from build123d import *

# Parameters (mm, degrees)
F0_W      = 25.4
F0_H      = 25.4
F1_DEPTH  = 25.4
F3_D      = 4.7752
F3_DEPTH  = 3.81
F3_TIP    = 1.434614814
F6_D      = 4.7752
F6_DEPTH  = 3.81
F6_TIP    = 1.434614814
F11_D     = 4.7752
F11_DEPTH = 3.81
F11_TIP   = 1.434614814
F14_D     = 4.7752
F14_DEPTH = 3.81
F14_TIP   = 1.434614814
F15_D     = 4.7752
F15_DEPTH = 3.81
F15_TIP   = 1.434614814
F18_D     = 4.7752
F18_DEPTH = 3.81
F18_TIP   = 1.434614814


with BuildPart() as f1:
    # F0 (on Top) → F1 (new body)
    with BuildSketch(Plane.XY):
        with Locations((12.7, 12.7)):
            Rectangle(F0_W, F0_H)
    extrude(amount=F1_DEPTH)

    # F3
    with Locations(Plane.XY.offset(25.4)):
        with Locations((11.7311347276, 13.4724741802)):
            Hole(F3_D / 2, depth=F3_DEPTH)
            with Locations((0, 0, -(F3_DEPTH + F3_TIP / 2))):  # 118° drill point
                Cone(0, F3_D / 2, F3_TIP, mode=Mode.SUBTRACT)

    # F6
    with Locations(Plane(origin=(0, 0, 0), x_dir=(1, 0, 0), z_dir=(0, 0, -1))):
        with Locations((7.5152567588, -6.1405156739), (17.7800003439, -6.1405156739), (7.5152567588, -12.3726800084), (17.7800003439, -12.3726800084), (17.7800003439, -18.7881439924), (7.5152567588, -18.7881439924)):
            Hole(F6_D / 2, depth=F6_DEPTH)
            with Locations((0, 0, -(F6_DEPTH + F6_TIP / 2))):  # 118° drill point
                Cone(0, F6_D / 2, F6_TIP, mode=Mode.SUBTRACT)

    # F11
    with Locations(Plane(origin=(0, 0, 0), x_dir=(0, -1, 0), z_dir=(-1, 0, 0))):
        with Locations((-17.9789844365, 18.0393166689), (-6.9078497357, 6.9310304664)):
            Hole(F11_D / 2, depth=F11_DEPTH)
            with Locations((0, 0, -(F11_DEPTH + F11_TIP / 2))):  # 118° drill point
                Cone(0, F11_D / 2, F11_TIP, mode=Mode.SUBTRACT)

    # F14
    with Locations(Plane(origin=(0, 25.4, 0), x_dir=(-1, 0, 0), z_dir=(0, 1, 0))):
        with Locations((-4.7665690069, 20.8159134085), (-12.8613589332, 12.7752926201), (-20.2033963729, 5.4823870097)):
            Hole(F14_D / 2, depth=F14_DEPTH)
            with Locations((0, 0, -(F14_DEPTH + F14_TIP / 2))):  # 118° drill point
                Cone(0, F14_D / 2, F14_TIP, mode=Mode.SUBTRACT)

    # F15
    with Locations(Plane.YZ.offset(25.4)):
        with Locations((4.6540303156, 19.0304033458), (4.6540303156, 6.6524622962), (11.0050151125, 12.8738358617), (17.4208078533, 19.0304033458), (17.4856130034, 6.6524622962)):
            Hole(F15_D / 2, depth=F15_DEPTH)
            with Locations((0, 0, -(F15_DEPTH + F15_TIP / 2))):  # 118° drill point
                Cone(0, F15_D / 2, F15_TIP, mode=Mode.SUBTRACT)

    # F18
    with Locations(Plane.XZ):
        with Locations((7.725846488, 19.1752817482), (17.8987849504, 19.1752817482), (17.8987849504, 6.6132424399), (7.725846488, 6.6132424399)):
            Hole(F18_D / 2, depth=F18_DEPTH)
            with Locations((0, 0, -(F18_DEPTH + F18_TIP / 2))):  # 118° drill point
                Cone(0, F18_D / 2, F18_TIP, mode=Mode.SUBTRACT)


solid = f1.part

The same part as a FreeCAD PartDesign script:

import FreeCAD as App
import Part
import Sketcher
from FreeCAD import Vector
Q = App.Units.Quantity


def add_polygon(sketch, points):
    """Adds a closed chain of lines whose ends are joined by coincident constraints."""
    first, n = sketch.GeometryCount, len(points)
    for a, b in zip(points, points[1:] + points[:1]):
        sketch.addGeometry(Part.LineSegment(App.Vector(*a, 0), App.Vector(*b, 0)), False)
    for i in range(n):
        sketch.addConstraint(Sketcher.Constraint("Coincident", first + i, 2, first + (i + 1) % n, 1))

doc = App.newDocument("Part")
params = doc.addObject("Spreadsheet::Sheet", "Params")
for row, (alias, value) in enumerate([
    ("sketch1_width", "1 in"),
    ("pad1_length", "1 in"),
    ("sketch2_diameter", "0.188 in"),
    ("hole_diameter", "0.188 in"),
    ("hole_depth", "0.15 in"),
    ("sketch3_diameter", "0.188 in"),
    ("hole2_diameter", "0.188 in"),
    ("hole2_depth", "0.15 in"),
    ("sketch4_diameter", "0.188 in"),
    ("hole3_diameter", "0.188 in"),
    ("hole3_depth", "0.15 in"),
    ("sketch5_diameter", "0.188 in"),
    ("hole4_diameter", "0.188 in"),
    ("hole4_depth", "0.15 in"),
    ("sketch6_diameter", "0.188 in"),
    ("hole5_diameter", "0.188 in"),
    ("hole5_depth", "0.15 in"),
    ("sketch7_diameter", "0.188 in"),
    ("hole6_diameter", "0.188 in"),
    ("hole6_depth", "0.15 in"),
], start=1):
    params.set(f"A{row}", alias)
    params.set(f"B{row}", "=" + value)
    params.setAlias(f"B{row}", alias)

body = doc.addObject("PartDesign::Body", "Body")

# Sketch on XY plane
sketch1 = body.newObject("Sketcher::SketchObject", "Sketch")
sketch1.AttachmentSupport = (doc.getObject("XY_Plane"), [""])
sketch1.MapMode = "FlatFace"
add_polygon(sketch1, [(0, 25), (0, 0), (25, 0), (25, 25)])  # lines 0-3
sketch1.addConstraint([
    Sketcher.Constraint("Vertical", 0),
    Sketcher.Constraint("Horizontal", 1),
    Sketcher.Constraint("Vertical", 2),
    Sketcher.Constraint("Horizontal", 3),
    Sketcher.Constraint("Coincident", 0, 2, -1, 1),
    Sketcher.Constraint("Equal", 3, 0),
    Sketcher.Constraint("DistanceX", 1, 1, 1, 2, Q("1 in")),
])
sketch1.setExpression("Constraints[10]", "Params.sketch1_width")
pad1 = body.newObject("PartDesign::Pad", "Pad")
pad1.Profile = sketch1
pad1.setExpression("Length", "Params.pad1_length")

# Sketch on XY plane
sketch2 = body.newObject("Sketcher::SketchObject", "Sketch001")
sketch2.AttachmentSupport = (doc.getObject("XY_Plane"), [""])
sketch2.MapMode = "FlatFace"
sketch2.AttachmentOffset = App.Placement(Vector(0, 0, 1 * 25.4), App.Rotation())
sketch2.addGeometry(Part.Circle(Vector(11.7, 13.5, 0), Vector(0, 0, 1), 2.4), False)
sketch2.addConstraint([
    Sketcher.Constraint("Diameter", 0, Q("0.188 in")),
    Sketcher.Constraint("DistanceX", -1, 1, 0, 3, Q("11.731135 mm")),
    Sketcher.Constraint("DistanceY", -1, 1, 0, 3, Q("13.472474 mm")),
])
sketch2.setExpression("Constraints[0]", "Params.sketch2_diameter")
doc.recompute()
hole = body.newObject("PartDesign::Hole", "Hole")
hole.Profile = sketch2
hole.ThreadType = "None"
hole.setExpression("Diameter", "Params.hole_diameter")
hole.DepthType = "Dimension"
hole.setExpression("Depth", "Params.hole_depth")
hole.DrillPoint = "Angled"
hole.DrillPointAngle = 118

# Sketch on XY plane
sketch3 = body.newObject("Sketcher::SketchObject", "Sketch002")
sketch3.AttachmentSupport = (doc.getObject("XY_Plane"), [""])
sketch3.MapMode = "FlatFace"
sketch3.addGeometry([
    Part.Circle(Vector(7.5, 6.1, 0), Vector(0, 0, 1), 2.4),  # 0
    Part.Circle(Vector(17.8, 6.1, 0), Vector(0, 0, 1), 2.4),  # 1
    Part.Circle(Vector(7.5, 12.4, 0), Vector(0, 0, 1), 2.4),  # 2
    Part.Circle(Vector(17.8, 12.4, 0), Vector(0, 0, 1), 2.4),  # 3
    Part.Circle(Vector(17.8, 18.8, 0), Vector(0, 0, 1), 2.4),  # 4
    Part.Circle(Vector(7.5, 18.8, 0), Vector(0, 0, 1), 2.4),  # 5
], False)
sketch3.addConstraint([
    Sketcher.Constraint("Equal", 0, 1),
    Sketcher.Constraint("Equal", 1, 2),
    Sketcher.Constraint("Equal", 2, 3),
    Sketcher.Constraint("Equal", 3, 4),
    Sketcher.Constraint("Equal", 4, 5),
    Sketcher.Constraint("Horizontal", 0, 3, 1, 3),
    Sketcher.Constraint("Horizontal", 2, 3, 3, 3),
    Sketcher.Constraint("Horizontal", 4, 3, 5, 3),
    Sketcher.Constraint("Vertical", 0, 3, 2, 3),
    Sketcher.Constraint("Vertical", 1, 3, 3, 3),
    Sketcher.Constraint("Vertical", 3, 3, 4, 3),
    Sketcher.Constraint("Vertical", 2, 3, 5, 3),
    Sketcher.Constraint("Diameter", 0, Q("0.188 in")),
    Sketcher.Constraint("DistanceX", -1, 1, 1, 3, Q("0.7 in")),
    Sketcher.Constraint("DistanceY", -1, 1, 2, 3, Q("12.37268 mm")),
    Sketcher.Constraint("DistanceY", 1, 3, 4, 3, Q("12.647628 mm")),
    Sketcher.Constraint("DistanceX", -1, 1, 0, 3, Q("7.515257 mm")),
    Sketcher.Constraint("DistanceY", -1, 1, 0, 3, Q("6.140516 mm")),
])
sketch3.setExpression("Constraints[12]", "Params.sketch3_diameter")
doc.recompute()
hole2 = body.newObject("PartDesign::Hole", "Hole001")
hole2.Profile = sketch3
hole2.ThreadType = "None"
hole2.setExpression("Diameter", "Params.hole2_diameter")
hole2.DepthType = "Dimension"
hole2.setExpression("Depth", "Params.hole2_depth")
hole2.DrillPoint = "Angled"
hole2.DrillPointAngle = 118
hole2.Reversed = True

# Sketch on YZ plane
sketch4 = body.newObject("Sketcher::SketchObject", "Sketch003")
sketch4.AttachmentSupport = (doc.getObject("YZ_Plane"), [""])
sketch4.MapMode = "FlatFace"
sketch4.addGeometry([
    Part.Circle(Vector(18, 18, 0), Vector(0, 0, 1), 2.4),
    Part.Circle(Vector(6.9, 6.9, 0), Vector(0, 0, 1), 2.4),
], False)
sketch4.addConstraint([
    Sketcher.Constraint("Equal", 0, 1),
    Sketcher.Constraint("Diameter", 0, Q("0.188 in")),
    Sketcher.Constraint("DistanceX", -1, 1, 1, 3, Q("6.90785 mm")),
    Sketcher.Constraint("DistanceY", -1, 1, 1, 3, Q("6.93103 mm")),
    Sketcher.Constraint("DistanceX", -1, 1, 0, 3, Q("17.978984 mm")),
    Sketcher.Constraint("DistanceY", -1, 1, 0, 3, Q("18.039317 mm")),
])
sketch4.setExpression("Constraints[1]", "Params.sketch4_diameter")
doc.recompute()
hole3 = body.newObject("PartDesign::Hole", "Hole002")
hole3.Profile = sketch4
hole3.ThreadType = "None"
hole3.setExpression("Diameter", "Params.hole3_diameter")
hole3.DepthType = "Dimension"
hole3.setExpression("Depth", "Params.hole3_depth")
hole3.DrillPoint = "Angled"
hole3.DrillPointAngle = 118
hole3.Reversed = True

# Sketch on XZ plane
sketch5 = body.newObject("Sketcher::SketchObject", "Sketch004")
sketch5.AttachmentSupport = (doc.getObject("XZ_Plane"), [""])
sketch5.MapMode = "FlatFace"
sketch5.AttachmentOffset = App.Placement(Vector(0, 0, -1 * 25.4), App.Rotation())
sketch5.addGeometry([
    Part.Circle(Vector(4.8, 20.8, 0), Vector(0, 0, 1), 2.4),
    Part.Circle(Vector(12.9, 12.8, 0), Vector(0, 0, 1), 2.4),
    Part.Circle(Vector(20.2, 5.5, 0), Vector(0, 0, 1), 2.4),
], False)
sketch5.addConstraint([
    Sketcher.Constraint("Equal", 0, 1),
    Sketcher.Constraint("Equal", 1, 2),
    Sketcher.Constraint("Diameter", 0, Q("0.188 in")),
    Sketcher.Constraint("DistanceX", -1, 1, 0, 3, Q("4.766569 mm")),
    Sketcher.Constraint("DistanceX", -1, 1, 1, 3, Q("12.861359 mm")),
    Sketcher.Constraint("DistanceY", 1, 3, 0, 3, Q("8.040621 mm")),
    Sketcher.Constraint("DistanceY", -1, 1, 0, 3, Q("20.815913 mm")),
    Sketcher.Constraint("DistanceX", -1, 1, 2, 3, Q("20.203396 mm")),
    Sketcher.Constraint("DistanceY", -1, 1, 2, 3, Q("5.482387 mm")),
])
sketch5.setExpression("Constraints[2]", "Params.sketch5_diameter")
doc.recompute()
hole4 = body.newObject("PartDesign::Hole", "Hole003")
hole4.Profile = sketch5
hole4.ThreadType = "None"
hole4.setExpression("Diameter", "Params.hole4_diameter")
hole4.DepthType = "Dimension"
hole4.setExpression("Depth", "Params.hole4_depth")
hole4.DrillPoint = "Angled"
hole4.DrillPointAngle = 118
hole4.Reversed = True

# Sketch on YZ plane
sketch6 = body.newObject("Sketcher::SketchObject", "Sketch005")
sketch6.AttachmentSupport = (doc.getObject("YZ_Plane"), [""])
sketch6.MapMode = "FlatFace"
sketch6.AttachmentOffset = App.Placement(Vector(0, 0, 1 * 25.4), App.Rotation())
sketch6.addGeometry([
    Part.Circle(Vector(4.7, 19, 0), Vector(0, 0, 1), 2.4),  # 0
    Part.Circle(Vector(4.7, 6.7, 0), Vector(0, 0, 1), 2.4),  # 1
    Part.Circle(Vector(11, 12.9, 0), Vector(0, 0, 1), 2.4),  # 2
    Part.Circle(Vector(17.4, 19, 0), Vector(0, 0, 1), 2.4),  # 3
    Part.Circle(Vector(17.5, 6.7, 0), Vector(0, 0, 1), 2.4),  # 4
], False)
sketch6.addConstraint([
    Sketcher.Constraint("Equal", 0, 1),
    Sketcher.Constraint("Equal", 1, 2),
    Sketcher.Constraint("Equal", 2, 3),
    Sketcher.Constraint("Equal", 3, 4),
    Sketcher.Constraint("Horizontal", 0, 3, 3, 3),
    Sketcher.Constraint("Horizontal", 1, 3, 4, 3),
    Sketcher.Constraint("Vertical", 0, 3, 1, 3),
    Sketcher.Constraint("Diameter", 0, Q("0.188 in")),
    Sketcher.Constraint("DistanceX", -1, 1, 0, 3, Q("4.65403 mm")),
    Sketcher.Constraint("DistanceY", 1, 3, 0, 3, Q("12.377941 mm")),
    Sketcher.Constraint("DistanceY", -1, 1, 0, 3, Q("19.030403 mm")),
    Sketcher.Constraint("DistanceX", -1, 1, 2, 3, Q("11.005015 mm")),
    Sketcher.Constraint("DistanceY", -1, 1, 2, 3, Q("12.873836 mm")),
    Sketcher.Constraint("DistanceX", -1, 1, 3, 3, Q("17.420808 mm")),
    Sketcher.Constraint("DistanceX", -1, 1, 4, 3, Q("17.485613 mm")),
])
sketch6.setExpression("Constraints[7]", "Params.sketch6_diameter")
doc.recompute()
hole5 = body.newObject("PartDesign::Hole", "Hole004")
hole5.Profile = sketch6
hole5.ThreadType = "None"
hole5.setExpression("Diameter", "Params.hole5_diameter")
hole5.DepthType = "Dimension"
hole5.setExpression("Depth", "Params.hole5_depth")
hole5.DrillPoint = "Angled"
hole5.DrillPointAngle = 118

# Sketch on XZ plane
sketch7 = body.newObject("Sketcher::SketchObject", "Sketch006")
sketch7.AttachmentSupport = (doc.getObject("XZ_Plane"), [""])
sketch7.MapMode = "FlatFace"
sketch7.addGeometry([
    Part.Circle(Vector(7.7, 19.2, 0), Vector(0, 0, 1), 2.4),
    Part.Circle(Vector(17.9, 19.2, 0), Vector(0, 0, 1), 2.4),
    Part.Circle(Vector(17.9, 6.6, 0), Vector(0, 0, 1), 2.4),
    Part.Circle(Vector(7.7, 6.6, 0), Vector(0, 0, 1), 2.4),
], False)
sketch7.addConstraint([
    Sketcher.Constraint("Equal", 0, 1),
    Sketcher.Constraint("Equal", 1, 2),
    Sketcher.Constraint("Equal", 2, 3),
    Sketcher.Constraint("Horizontal", 0, 3, 1, 3),
    Sketcher.Constraint("Horizontal", 2, 3, 3, 3),
    Sketcher.Constraint("Vertical", 1, 3, 2, 3),
    Sketcher.Constraint("Vertical", 0, 3, 3, 3),
    Sketcher.Constraint("Diameter", 0, Q("0.188 in")),
    Sketcher.Constraint("DistanceY", -1, 1, 0, 3, Q("19.175282 mm")),
    Sketcher.Constraint("DistanceX", 0, 3, 1, 3, Q("10.172938 mm")),
    Sketcher.Constraint("DistanceY", 2, 3, 1, 3, Q("12.562039 mm")),
    Sketcher.Constraint("DistanceX", -1, 1, 0, 3, Q("7.725846 mm")),
])
sketch7.setExpression("Constraints[7]", "Params.sketch7_diameter")
doc.recompute()
hole6 = body.newObject("PartDesign::Hole", "Hole005")
hole6.Profile = sketch7
hole6.ThreadType = "None"
hole6.setExpression("Diameter", "Params.hole6_diameter")
hole6.DepthType = "Dimension"
hole6.setExpression("Depth", "Params.hole6_depth")
hole6.DrillPoint = "Angled"
hole6.DrillPointAngle = 118

doc.recompute()
